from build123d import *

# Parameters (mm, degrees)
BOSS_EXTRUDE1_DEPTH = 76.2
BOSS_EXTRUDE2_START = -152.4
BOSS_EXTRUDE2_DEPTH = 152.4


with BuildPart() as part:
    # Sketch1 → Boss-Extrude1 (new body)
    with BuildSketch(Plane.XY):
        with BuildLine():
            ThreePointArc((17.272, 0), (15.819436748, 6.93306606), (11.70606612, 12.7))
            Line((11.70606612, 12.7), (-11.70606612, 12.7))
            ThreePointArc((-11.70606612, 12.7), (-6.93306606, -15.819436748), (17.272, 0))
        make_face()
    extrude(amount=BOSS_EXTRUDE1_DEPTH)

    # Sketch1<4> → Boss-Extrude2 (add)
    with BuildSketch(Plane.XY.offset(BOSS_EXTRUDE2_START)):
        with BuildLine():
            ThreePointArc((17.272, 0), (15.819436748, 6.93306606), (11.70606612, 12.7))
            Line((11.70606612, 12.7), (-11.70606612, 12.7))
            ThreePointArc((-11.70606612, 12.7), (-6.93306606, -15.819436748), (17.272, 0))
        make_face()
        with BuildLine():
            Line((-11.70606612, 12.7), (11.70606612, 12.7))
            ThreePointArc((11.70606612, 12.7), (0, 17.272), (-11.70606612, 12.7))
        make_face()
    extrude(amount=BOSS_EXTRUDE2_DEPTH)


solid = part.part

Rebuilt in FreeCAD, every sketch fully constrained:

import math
import FreeCAD as App
import Part
import Sketcher
Q = App.Units.Quantity

doc = App.newDocument("Part")
body = doc.addObject("PartDesign::Body", "Body")

# Sketch on XY plane
sketch1 = doc.addObject("Sketcher::SketchObject", "Sketch")
body.addObject(sketch1)
sketch1.AttachmentSupport = (doc.XY_Plane, [""])
sketch1.MapMode = "FlatFace"
sketch1.addGeometry(Part.ArcOfCircle(Part.Circle(App.Vector(0, 0, 0), App.Vector(0, 0, 1), 17.272), math.radians(0), math.radians(47.332075)), False)
sketch1.addGeometry(Part.LineSegment(App.Vector(11.706066, 12.7, 0), App.Vector(-11.706066, 12.7, 0)), False)
sketch1.addGeometry(Part.ArcOfCircle(Part.Circle(App.Vector(0, 0, 0), App.Vector(0, 0, 1), 17.272), math.radians(132.667925), math.radians(360)), False)
sketch1.addConstraint(Sketcher.Constraint("Coincident", 0, 2, 1, 1))
sketch1.addConstraint(Sketcher.Constraint("Coincident", 1, 2, 2, 1))
sketch1.addConstraint(Sketcher.Constraint("Tangent", 2, 2, 0, 1))
sketch1.addConstraint(Sketcher.Constraint("Horizontal", 1))
sketch1.addConstraint(Sketcher.Constraint("Coincident", 0, 3, -1, 1))
sketch1.addConstraint(Sketcher.Constraint("Equal", 0, 2))
sketch1.addConstraint(Sketcher.Constraint("PointOnObject", 2, 2, -1))
sketch1.addConstraint(Sketcher.Constraint("Radius", 0, Q("0.68 in")))
sketch1.addConstraint(Sketcher.Constraint("DistanceY", -1, 1, 0, 2, Q("0.5 in")))
pad1 = doc.addObject("PartDesign::Pad", "Pad")
body.addObject(pad1)
pad1.Profile = sketch1
pad1.Length = Q("3 in")

# Sketch on XY plane
sketch2 = doc.addObject("Sketcher::SketchObject", "Sketch001")
body.addObject(sketch2)
sketch2.AttachmentSupport = (doc.XY_Plane, [""])
sketch2.MapMode = "FlatFace"
sketch2.AttachmentOffset = App.Placement(App.Vector(0, 0, -6 * 25.4), App.Rotation())
sketch2.addGeometry(Part.ArcOfCircle(Part.Circle(App.Vector(0, 0, 0), App.Vector(0, 0, 1), 17.272), math.radians(0), math.radians(47.332075)), False)
sketch2.addGeometry(Part.ArcOfCircle(Part.Circle(App.Vector(0, 0, 0), App.Vector(0, 0, 1), 17.272), math.radians(47.332075), math.radians(132.667925)), False)
sketch2.addGeometry(Part.ArcOfCircle(Part.Circle(App.Vector(0, 0, 0), App.Vector(0, 0, 1), 17.272), math.radians(132.667925), math.radians(360)), False)
sketch2.addConstraint(Sketcher.Constraint("Tangent", 0, 2, 1, 1))
sketch2.addConstraint(Sketcher.Constraint("Tangent", 1, 2, 2, 1))
sketch2.addConstraint(Sketcher.Constraint("Tangent", 2, 2, 0, 1))
sketch2.addConstraint(Sketcher.Constraint("Coincident", 0, 3, -1, 1))
sketch2.addConstraint(Sketcher.Constraint("PointOnObject", 2, 2, -1))
sketch2.addConstraint(Sketcher.Constraint("Horizontal", 0, 2, 1, 2))
sketch2.addConstraint(Sketcher.Constraint("Radius", 0, Q("0.68 in")))
sketch2.addConstraint(Sketcher.Constraint("DistanceY", -1, 1, 0, 2, Q("0.5 in")))
pad2 = doc.addObject("PartDesign::Pad", "Pad001")
body.addObject(pad2)
pad2.Profile = sketch2
pad2.Length = Q("6 in")

doc.recompute()
